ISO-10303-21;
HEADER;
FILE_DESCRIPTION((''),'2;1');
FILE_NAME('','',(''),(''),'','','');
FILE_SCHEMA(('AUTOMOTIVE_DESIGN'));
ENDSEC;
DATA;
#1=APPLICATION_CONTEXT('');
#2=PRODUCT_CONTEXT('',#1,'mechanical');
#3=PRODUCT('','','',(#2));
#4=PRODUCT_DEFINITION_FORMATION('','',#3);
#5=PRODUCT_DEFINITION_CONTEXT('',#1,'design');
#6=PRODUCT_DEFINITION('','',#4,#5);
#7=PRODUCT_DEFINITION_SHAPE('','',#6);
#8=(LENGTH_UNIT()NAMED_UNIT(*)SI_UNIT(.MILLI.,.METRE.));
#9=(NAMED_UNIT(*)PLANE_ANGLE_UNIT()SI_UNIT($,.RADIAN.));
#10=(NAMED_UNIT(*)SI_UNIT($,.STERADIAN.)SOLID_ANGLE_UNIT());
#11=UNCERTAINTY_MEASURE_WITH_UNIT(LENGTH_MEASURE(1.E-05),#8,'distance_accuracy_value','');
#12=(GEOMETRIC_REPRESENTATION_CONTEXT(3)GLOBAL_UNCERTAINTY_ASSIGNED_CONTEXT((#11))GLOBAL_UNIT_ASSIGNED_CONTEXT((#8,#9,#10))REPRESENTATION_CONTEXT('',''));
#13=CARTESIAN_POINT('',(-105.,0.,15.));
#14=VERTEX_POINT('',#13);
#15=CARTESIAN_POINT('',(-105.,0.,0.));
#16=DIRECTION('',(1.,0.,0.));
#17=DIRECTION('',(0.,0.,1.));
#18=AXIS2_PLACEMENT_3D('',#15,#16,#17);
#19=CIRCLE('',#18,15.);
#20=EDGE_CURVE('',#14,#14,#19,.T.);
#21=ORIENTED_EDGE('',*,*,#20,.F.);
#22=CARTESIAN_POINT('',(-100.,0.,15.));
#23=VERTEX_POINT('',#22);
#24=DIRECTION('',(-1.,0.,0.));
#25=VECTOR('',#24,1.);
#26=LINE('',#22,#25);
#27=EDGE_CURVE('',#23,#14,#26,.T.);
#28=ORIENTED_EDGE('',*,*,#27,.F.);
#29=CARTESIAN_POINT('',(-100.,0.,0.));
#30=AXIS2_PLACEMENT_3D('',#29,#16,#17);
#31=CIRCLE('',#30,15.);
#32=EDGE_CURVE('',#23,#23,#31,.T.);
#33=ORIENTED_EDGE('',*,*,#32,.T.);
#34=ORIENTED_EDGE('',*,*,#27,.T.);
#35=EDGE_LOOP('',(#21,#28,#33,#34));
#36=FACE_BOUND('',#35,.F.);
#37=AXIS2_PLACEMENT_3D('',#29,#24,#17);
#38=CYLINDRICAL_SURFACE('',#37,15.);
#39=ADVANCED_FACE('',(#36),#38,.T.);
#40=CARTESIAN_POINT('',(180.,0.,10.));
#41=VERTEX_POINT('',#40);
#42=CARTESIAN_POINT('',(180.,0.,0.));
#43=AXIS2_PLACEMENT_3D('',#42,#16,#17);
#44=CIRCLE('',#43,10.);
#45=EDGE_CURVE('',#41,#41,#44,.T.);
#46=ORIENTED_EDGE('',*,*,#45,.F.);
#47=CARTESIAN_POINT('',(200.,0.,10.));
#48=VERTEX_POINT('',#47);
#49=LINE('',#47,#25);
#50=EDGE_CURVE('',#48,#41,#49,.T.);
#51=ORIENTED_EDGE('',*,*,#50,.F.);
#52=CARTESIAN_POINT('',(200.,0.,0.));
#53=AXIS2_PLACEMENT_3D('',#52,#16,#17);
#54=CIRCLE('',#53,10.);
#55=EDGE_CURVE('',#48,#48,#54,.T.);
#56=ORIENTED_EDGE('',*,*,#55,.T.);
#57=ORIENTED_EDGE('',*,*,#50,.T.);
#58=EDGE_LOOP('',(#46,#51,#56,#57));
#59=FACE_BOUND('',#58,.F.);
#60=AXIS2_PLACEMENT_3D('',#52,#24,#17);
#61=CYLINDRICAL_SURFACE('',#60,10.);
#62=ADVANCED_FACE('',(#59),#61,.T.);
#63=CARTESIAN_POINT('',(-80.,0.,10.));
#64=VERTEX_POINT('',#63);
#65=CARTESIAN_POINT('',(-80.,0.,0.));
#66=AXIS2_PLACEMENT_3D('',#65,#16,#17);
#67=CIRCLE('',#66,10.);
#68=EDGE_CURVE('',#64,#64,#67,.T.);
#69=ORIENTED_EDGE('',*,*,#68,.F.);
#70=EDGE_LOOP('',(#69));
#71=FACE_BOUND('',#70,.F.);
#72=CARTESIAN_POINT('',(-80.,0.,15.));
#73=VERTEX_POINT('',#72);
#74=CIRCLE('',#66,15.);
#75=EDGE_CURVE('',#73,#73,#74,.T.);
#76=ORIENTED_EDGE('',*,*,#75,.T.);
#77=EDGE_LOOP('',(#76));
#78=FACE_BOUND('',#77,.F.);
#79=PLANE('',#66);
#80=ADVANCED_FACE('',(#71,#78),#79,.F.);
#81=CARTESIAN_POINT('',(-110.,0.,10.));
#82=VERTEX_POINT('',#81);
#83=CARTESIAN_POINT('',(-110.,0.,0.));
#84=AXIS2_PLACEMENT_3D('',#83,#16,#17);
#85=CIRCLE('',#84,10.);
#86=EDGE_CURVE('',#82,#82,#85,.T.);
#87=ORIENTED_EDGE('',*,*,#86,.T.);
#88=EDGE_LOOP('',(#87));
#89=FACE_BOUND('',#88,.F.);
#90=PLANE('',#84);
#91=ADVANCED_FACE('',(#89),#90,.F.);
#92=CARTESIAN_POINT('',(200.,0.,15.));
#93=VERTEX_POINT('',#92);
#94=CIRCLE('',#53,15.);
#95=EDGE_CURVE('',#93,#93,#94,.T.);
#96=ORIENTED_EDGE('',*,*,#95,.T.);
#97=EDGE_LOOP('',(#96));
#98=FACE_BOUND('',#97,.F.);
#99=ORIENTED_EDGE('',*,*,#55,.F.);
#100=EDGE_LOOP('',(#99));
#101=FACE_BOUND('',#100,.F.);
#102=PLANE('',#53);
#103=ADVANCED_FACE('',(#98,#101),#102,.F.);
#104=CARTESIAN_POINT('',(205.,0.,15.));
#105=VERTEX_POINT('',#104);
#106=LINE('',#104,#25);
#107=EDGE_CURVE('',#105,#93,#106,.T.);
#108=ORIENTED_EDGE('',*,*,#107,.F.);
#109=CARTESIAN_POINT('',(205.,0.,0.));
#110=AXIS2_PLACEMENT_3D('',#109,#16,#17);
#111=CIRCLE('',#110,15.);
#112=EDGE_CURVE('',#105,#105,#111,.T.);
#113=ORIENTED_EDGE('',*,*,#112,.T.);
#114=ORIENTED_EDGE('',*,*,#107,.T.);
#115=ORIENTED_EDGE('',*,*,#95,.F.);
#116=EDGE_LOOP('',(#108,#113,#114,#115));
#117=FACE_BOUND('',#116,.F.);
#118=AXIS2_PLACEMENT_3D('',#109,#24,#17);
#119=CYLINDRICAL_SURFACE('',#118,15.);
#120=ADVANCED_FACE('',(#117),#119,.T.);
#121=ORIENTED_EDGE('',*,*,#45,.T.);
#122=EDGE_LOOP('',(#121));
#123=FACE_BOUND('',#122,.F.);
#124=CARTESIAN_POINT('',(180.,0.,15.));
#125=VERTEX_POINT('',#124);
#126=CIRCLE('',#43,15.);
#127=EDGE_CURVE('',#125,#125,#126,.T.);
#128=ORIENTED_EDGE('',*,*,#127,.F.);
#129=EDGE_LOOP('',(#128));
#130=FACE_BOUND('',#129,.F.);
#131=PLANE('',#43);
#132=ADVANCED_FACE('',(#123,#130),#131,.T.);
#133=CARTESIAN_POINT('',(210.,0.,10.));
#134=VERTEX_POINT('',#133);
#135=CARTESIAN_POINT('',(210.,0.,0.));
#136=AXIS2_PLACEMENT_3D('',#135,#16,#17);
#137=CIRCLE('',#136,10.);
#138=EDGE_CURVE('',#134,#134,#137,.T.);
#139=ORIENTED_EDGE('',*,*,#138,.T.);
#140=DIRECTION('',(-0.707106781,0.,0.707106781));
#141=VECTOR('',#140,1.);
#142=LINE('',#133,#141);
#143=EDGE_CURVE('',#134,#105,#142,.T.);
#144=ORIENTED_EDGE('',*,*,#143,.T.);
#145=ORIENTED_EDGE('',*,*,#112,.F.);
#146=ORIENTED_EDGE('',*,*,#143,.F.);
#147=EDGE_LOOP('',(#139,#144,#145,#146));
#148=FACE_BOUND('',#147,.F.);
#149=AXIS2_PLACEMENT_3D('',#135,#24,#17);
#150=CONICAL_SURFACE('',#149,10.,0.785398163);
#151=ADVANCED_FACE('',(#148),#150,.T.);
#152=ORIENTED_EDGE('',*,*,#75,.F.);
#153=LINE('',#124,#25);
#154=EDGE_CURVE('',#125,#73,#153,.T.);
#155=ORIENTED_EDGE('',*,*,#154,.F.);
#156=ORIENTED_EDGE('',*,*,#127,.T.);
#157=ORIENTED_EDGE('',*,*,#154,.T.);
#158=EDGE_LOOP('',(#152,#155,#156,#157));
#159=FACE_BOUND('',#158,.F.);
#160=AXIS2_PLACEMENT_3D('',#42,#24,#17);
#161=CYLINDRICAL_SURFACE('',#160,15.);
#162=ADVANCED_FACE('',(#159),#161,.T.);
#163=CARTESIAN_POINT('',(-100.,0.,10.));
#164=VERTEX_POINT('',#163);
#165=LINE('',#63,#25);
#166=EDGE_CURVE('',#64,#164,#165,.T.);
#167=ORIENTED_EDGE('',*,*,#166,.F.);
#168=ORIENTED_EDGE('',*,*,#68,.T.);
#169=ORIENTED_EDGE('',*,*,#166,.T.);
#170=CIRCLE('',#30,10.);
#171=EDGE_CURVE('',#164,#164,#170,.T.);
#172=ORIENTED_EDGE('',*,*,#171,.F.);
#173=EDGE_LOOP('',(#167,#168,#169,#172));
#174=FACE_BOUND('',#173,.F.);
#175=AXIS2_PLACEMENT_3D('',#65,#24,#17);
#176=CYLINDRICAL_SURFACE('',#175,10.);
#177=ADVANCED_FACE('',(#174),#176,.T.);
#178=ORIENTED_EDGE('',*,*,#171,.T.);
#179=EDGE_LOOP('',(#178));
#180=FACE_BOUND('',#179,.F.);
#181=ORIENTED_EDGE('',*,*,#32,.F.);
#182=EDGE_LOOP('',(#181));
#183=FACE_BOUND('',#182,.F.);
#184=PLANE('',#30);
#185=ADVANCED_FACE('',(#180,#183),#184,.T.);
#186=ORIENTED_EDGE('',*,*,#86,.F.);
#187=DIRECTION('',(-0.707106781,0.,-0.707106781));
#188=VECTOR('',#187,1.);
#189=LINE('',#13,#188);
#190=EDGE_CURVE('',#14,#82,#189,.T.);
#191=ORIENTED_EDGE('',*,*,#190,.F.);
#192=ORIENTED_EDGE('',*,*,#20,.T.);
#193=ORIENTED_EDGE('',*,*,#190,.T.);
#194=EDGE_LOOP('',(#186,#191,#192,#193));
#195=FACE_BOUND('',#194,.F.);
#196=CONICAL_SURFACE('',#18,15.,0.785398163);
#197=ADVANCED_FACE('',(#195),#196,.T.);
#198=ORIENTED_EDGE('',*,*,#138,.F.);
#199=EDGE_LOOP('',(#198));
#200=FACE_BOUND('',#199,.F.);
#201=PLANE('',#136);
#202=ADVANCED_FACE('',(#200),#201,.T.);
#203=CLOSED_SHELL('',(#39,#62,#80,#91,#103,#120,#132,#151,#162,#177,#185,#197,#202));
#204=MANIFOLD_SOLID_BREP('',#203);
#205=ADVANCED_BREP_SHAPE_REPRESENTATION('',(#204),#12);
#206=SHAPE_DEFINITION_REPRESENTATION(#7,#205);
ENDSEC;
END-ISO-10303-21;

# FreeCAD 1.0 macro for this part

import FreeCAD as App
import Part
import Sketcher


def add_polygon(sketch, points):
    """Adds a closed chain of lines whose ends are joined by coincident constraints."""
    first, n = sketch.GeometryCount, len(points)
    for a, b in zip(points, points[1:] + points[:1]):
        sketch.addGeometry(Part.LineSegment(App.Vector(*a, 0), App.Vector(*b, 0)), False)
    for i in range(n):
        sketch.addConstraint(Sketcher.Constraint("Coincident", first + i, 2, first + (i + 1) % n, 1))

doc = App.newDocument("Part")
body = doc.addObject("PartDesign::Body", "Body")

sketch1 = body.newObject("Sketcher::SketchObject", "Sketch")
sketch1.AttachmentSupport = (doc.getObject("XZ_Plane"), [""])
sketch1.MapMode = "FlatFace"
add_polygon(sketch1, [(-110, 0), (210, 0), (210, 10), (205, 15), (200, 15), (200, 10), (180, 10), (180, 15), (-80, 15), (-80, 10), (-100, 10), (-100, 15), (-105, 15), (-110, 10)])
sketch1.addConstraint(Sketcher.Constraint("Horizontal", 0))
sketch1.addConstraint(Sketcher.Constraint("Vertical", 1))
sketch1.addConstraint(Sketcher.Constraint("Horizontal", 3))
sketch1.addConstraint(Sketcher.Constraint("Vertical", 4))
sketch1.addConstraint(Sketcher.Constraint("Horizontal", 5))
sketch1.addConstraint(Sketcher.Constraint("Vertical", 6))
sketch1.addConstraint(Sketcher.Constraint("Horizontal", 7))
sketch1.addConstraint(Sketcher.Constraint("Vertical", 8))
sketch1.addConstraint(Sketcher.Constraint("Horizontal", 9))
sketch1.addConstraint(Sketcher.Constraint("Vertical", 10))
sketch1.addConstraint(Sketcher.Constraint("Horizontal", 11))
sketch1.addConstraint(Sketcher.Constraint("Vertical", 13))
sketch1.addConstraint(Sketcher.Constraint("PointOnObject", 0, 2, -1))
sketch1.addConstraint(Sketcher.Constraint("Perpendicular", 2, 12))
sketch1.addConstraint(Sketcher.Constraint("Horizontal", 1, 2, 4, 2))
sketch1.addConstraint(Sketcher.Constraint("Horizontal", 3, 2, 6, 2))
sketch1.addConstraint(Sketcher.Constraint("Horizontal", 5, 2, 8, 2))
sketch1.addConstraint(Sketcher.Constraint("Horizontal", 7, 2, 10, 2))
sketch1.addConstraint(Sketcher.Constraint("Horizontal", 9, 2, 12, 2))
sketch1.addConstraint(Sketcher.Constraint("Equal", 5, 9))
sketch1.addConstraint(Sketcher.Constraint("Equal", 3, 11))
sketch1.addConstraint(Sketcher.Constraint("Equal", 11, 4))
sketch1.addConstraint(Sketcher.Constraint("Equal", 2, 12))
sketch1.addConstraint(Sketcher.Constraint("DistanceX", 0, 1, 0, 2, 320.0))
sketch1.addConstraint(Sketcher.Constraint("DistanceX", 3, 2, 3, 1, 5.0))
sketch1.addConstraint(Sketcher.Constraint("DistanceX", 5, 2, 5, 1, 20.0))
sketch1.addConstraint(Sketcher.Constraint("DistanceY", 1, 1, 1, 2, 10.0))
sketch1.addConstraint(Sketcher.Constraint("DistanceX", -1, 1, 0, 2, 210.0))
revolution = body.newObject("PartDesign::Revolution", "Revolution")
revolution.Profile = sketch1
revolution.ReferenceAxis = (sketch1, ["H_Axis"])
revolution.Angle = 360

doc.recompute()
